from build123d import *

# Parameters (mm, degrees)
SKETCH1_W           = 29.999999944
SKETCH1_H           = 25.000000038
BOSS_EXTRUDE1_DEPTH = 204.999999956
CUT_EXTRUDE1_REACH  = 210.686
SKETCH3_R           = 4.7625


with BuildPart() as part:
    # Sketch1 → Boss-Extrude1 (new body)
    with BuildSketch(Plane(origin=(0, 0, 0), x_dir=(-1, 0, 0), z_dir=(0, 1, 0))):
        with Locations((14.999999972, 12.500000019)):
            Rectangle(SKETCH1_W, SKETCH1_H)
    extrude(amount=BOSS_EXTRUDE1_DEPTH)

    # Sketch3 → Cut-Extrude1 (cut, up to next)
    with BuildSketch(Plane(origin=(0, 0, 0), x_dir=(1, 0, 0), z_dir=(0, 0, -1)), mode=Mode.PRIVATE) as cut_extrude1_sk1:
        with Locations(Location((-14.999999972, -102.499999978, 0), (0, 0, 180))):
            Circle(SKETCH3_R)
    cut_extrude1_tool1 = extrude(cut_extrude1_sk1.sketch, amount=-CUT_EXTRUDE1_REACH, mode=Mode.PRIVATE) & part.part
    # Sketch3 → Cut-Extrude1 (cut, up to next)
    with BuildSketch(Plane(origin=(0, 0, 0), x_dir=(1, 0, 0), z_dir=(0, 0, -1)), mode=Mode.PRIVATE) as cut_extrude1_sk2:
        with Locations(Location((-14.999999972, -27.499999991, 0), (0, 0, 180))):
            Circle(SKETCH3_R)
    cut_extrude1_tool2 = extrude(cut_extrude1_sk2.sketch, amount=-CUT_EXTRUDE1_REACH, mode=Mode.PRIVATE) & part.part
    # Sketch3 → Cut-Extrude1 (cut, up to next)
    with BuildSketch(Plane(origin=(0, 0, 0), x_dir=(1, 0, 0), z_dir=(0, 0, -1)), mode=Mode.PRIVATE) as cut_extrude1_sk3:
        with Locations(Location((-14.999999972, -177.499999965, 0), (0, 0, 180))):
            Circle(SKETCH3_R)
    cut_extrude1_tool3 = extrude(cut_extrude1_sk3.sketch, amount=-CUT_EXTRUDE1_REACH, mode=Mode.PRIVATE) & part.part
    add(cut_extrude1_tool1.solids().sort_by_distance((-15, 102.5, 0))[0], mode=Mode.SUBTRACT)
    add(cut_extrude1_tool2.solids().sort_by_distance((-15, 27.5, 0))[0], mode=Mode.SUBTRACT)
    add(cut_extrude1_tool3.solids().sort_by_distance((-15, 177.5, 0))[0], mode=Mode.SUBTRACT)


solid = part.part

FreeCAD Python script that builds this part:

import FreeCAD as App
import Part
import Sketcher
from FreeCAD import Vector
Q = App.Units.Quantity


def add_polygon(sketch, points):
    """Adds a closed chain of lines whose ends are joined by coincident constraints."""
    first, n = sketch.GeometryCount, len(points)
    for a, b in zip(points, points[1:] + points[:1]):
        sketch.addGeometry(Part.LineSegment(App.Vector(*a, 0), App.Vector(*b, 0)), False)
    for i in range(n):
        sketch.addConstraint(Sketcher.Constraint("Coincident", first + i, 2, first + (i + 1) % n, 1))

doc = App.newDocument("Part")
body = doc.addObject("PartDesign::Body", "Body")

sketch1 = doc.addObject("Sketcher::SketchObject", "Sketch")
body.addObject(sketch1)
sketch1.AttachmentSupport = (doc.XZ_Plane, [""])
sketch1.MapMode = "FlatFace"
add_polygon(sketch1, [(0, 25), (0, 0), (-30, 0), (-30, 25)])
sketch1.addConstraint([
    Sketcher.Constraint("Vertical", 0),
    Sketcher.Constraint("Horizontal", 1),
    Sketcher.Constraint("Vertical", 2),
    Sketcher.Constraint("Horizontal", 3),
    Sketcher.Constraint("Coincident", 0, 2, -1, 1),
    Sketcher.Constraint("DistanceX", 1, 2, 1, 1, Q("30 mm")),
    Sketcher.Constraint("DistanceY", 0, 2, 0, 1, Q("25 mm")),
])
pad1 = doc.addObject("PartDesign::Pad", "Pad")
body.addObject(pad1)
pad1.Profile = sketch1
pad1.Length = 205
pad1.Reversed = True

sketch2 = doc.addObject("Sketcher::SketchObject", "Sketch001")
body.addObject(sketch2)
sketch2.AttachmentSupport = (doc.XY_Plane, [""])
sketch2.MapMode = "FlatFace"
sketch2.addGeometry(Part.Circle(Vector(-15, 102.5, 0), Vector(0, 0, 1), 4.8), False)
sketch2.addConstraint([
    Sketcher.Constraint("Diameter", 0, Q("9.525 mm")),
    Sketcher.Constraint("DistanceX", 0, 3, -1, 1, Q("15 mm")),
    Sketcher.Constraint("DistanceY", -1, 1, 0, 3, Q("102.5 mm")),
])
pocket1 = doc.addObject("PartDesign::Pocket", "Pocket")
body.addObject(pocket1)
pocket1.Profile = sketch2
pocket1.Type = "UpToFirst"
pocket1.Reversed = True

sketch3 = doc.addObject("Sketcher::SketchObject", "Sketch002")
body.addObject(sketch3)
sketch3.AttachmentSupport = (doc.XY_Plane, [""])
sketch3.MapMode = "FlatFace"
sketch3.addGeometry(Part.Circle(Vector(-15, 27.5, 0), Vector(0, 0, 1), 4.8), False)
sketch3.addConstraint([
    Sketcher.Constraint("Diameter", 0, Q("9.525 mm")),
    Sketcher.Constraint("DistanceX", 0, 3, -1, 1, Q("15 mm")),
    Sketcher.Constraint("DistanceY", -1, 1, 0, 3, Q("27.5 mm")),
])
pocket2 = doc.addObject("PartDesign::Pocket", "Pocket001")
body.addObject(pocket2)
pocket2.Profile = sketch3
pocket2.Type = "UpToFirst"
pocket2.Reversed = True

sketch4 = doc.addObject("Sketcher::SketchObject", "Sketch003")
body.addObject(sketch4)
sketch4.AttachmentSupport = (doc.XY_Plane, [""])
sketch4.MapMode = "FlatFace"
sketch4.addGeometry(Part.Circle(Vector(-15, 177.5, 0), Vector(0, 0, 1), 4.8), False)
sketch4.addConstraint([
    Sketcher.Constraint("Diameter", 0, Q("9.525 mm")),
    Sketcher.Constraint("DistanceX", 0, 3, -1, 1, Q("15 mm")),
    Sketcher.Constraint("DistanceY", -1, 1, 0, 3, Q("177.5 mm")),
])
pocket3 = doc.addObject("PartDesign::Pocket", "Pocket002")
body.addObject(pocket3)
pocket3.Profile = sketch4
pocket3.Type = "UpToFirst"
pocket3.Reversed = True

doc.recompute()
